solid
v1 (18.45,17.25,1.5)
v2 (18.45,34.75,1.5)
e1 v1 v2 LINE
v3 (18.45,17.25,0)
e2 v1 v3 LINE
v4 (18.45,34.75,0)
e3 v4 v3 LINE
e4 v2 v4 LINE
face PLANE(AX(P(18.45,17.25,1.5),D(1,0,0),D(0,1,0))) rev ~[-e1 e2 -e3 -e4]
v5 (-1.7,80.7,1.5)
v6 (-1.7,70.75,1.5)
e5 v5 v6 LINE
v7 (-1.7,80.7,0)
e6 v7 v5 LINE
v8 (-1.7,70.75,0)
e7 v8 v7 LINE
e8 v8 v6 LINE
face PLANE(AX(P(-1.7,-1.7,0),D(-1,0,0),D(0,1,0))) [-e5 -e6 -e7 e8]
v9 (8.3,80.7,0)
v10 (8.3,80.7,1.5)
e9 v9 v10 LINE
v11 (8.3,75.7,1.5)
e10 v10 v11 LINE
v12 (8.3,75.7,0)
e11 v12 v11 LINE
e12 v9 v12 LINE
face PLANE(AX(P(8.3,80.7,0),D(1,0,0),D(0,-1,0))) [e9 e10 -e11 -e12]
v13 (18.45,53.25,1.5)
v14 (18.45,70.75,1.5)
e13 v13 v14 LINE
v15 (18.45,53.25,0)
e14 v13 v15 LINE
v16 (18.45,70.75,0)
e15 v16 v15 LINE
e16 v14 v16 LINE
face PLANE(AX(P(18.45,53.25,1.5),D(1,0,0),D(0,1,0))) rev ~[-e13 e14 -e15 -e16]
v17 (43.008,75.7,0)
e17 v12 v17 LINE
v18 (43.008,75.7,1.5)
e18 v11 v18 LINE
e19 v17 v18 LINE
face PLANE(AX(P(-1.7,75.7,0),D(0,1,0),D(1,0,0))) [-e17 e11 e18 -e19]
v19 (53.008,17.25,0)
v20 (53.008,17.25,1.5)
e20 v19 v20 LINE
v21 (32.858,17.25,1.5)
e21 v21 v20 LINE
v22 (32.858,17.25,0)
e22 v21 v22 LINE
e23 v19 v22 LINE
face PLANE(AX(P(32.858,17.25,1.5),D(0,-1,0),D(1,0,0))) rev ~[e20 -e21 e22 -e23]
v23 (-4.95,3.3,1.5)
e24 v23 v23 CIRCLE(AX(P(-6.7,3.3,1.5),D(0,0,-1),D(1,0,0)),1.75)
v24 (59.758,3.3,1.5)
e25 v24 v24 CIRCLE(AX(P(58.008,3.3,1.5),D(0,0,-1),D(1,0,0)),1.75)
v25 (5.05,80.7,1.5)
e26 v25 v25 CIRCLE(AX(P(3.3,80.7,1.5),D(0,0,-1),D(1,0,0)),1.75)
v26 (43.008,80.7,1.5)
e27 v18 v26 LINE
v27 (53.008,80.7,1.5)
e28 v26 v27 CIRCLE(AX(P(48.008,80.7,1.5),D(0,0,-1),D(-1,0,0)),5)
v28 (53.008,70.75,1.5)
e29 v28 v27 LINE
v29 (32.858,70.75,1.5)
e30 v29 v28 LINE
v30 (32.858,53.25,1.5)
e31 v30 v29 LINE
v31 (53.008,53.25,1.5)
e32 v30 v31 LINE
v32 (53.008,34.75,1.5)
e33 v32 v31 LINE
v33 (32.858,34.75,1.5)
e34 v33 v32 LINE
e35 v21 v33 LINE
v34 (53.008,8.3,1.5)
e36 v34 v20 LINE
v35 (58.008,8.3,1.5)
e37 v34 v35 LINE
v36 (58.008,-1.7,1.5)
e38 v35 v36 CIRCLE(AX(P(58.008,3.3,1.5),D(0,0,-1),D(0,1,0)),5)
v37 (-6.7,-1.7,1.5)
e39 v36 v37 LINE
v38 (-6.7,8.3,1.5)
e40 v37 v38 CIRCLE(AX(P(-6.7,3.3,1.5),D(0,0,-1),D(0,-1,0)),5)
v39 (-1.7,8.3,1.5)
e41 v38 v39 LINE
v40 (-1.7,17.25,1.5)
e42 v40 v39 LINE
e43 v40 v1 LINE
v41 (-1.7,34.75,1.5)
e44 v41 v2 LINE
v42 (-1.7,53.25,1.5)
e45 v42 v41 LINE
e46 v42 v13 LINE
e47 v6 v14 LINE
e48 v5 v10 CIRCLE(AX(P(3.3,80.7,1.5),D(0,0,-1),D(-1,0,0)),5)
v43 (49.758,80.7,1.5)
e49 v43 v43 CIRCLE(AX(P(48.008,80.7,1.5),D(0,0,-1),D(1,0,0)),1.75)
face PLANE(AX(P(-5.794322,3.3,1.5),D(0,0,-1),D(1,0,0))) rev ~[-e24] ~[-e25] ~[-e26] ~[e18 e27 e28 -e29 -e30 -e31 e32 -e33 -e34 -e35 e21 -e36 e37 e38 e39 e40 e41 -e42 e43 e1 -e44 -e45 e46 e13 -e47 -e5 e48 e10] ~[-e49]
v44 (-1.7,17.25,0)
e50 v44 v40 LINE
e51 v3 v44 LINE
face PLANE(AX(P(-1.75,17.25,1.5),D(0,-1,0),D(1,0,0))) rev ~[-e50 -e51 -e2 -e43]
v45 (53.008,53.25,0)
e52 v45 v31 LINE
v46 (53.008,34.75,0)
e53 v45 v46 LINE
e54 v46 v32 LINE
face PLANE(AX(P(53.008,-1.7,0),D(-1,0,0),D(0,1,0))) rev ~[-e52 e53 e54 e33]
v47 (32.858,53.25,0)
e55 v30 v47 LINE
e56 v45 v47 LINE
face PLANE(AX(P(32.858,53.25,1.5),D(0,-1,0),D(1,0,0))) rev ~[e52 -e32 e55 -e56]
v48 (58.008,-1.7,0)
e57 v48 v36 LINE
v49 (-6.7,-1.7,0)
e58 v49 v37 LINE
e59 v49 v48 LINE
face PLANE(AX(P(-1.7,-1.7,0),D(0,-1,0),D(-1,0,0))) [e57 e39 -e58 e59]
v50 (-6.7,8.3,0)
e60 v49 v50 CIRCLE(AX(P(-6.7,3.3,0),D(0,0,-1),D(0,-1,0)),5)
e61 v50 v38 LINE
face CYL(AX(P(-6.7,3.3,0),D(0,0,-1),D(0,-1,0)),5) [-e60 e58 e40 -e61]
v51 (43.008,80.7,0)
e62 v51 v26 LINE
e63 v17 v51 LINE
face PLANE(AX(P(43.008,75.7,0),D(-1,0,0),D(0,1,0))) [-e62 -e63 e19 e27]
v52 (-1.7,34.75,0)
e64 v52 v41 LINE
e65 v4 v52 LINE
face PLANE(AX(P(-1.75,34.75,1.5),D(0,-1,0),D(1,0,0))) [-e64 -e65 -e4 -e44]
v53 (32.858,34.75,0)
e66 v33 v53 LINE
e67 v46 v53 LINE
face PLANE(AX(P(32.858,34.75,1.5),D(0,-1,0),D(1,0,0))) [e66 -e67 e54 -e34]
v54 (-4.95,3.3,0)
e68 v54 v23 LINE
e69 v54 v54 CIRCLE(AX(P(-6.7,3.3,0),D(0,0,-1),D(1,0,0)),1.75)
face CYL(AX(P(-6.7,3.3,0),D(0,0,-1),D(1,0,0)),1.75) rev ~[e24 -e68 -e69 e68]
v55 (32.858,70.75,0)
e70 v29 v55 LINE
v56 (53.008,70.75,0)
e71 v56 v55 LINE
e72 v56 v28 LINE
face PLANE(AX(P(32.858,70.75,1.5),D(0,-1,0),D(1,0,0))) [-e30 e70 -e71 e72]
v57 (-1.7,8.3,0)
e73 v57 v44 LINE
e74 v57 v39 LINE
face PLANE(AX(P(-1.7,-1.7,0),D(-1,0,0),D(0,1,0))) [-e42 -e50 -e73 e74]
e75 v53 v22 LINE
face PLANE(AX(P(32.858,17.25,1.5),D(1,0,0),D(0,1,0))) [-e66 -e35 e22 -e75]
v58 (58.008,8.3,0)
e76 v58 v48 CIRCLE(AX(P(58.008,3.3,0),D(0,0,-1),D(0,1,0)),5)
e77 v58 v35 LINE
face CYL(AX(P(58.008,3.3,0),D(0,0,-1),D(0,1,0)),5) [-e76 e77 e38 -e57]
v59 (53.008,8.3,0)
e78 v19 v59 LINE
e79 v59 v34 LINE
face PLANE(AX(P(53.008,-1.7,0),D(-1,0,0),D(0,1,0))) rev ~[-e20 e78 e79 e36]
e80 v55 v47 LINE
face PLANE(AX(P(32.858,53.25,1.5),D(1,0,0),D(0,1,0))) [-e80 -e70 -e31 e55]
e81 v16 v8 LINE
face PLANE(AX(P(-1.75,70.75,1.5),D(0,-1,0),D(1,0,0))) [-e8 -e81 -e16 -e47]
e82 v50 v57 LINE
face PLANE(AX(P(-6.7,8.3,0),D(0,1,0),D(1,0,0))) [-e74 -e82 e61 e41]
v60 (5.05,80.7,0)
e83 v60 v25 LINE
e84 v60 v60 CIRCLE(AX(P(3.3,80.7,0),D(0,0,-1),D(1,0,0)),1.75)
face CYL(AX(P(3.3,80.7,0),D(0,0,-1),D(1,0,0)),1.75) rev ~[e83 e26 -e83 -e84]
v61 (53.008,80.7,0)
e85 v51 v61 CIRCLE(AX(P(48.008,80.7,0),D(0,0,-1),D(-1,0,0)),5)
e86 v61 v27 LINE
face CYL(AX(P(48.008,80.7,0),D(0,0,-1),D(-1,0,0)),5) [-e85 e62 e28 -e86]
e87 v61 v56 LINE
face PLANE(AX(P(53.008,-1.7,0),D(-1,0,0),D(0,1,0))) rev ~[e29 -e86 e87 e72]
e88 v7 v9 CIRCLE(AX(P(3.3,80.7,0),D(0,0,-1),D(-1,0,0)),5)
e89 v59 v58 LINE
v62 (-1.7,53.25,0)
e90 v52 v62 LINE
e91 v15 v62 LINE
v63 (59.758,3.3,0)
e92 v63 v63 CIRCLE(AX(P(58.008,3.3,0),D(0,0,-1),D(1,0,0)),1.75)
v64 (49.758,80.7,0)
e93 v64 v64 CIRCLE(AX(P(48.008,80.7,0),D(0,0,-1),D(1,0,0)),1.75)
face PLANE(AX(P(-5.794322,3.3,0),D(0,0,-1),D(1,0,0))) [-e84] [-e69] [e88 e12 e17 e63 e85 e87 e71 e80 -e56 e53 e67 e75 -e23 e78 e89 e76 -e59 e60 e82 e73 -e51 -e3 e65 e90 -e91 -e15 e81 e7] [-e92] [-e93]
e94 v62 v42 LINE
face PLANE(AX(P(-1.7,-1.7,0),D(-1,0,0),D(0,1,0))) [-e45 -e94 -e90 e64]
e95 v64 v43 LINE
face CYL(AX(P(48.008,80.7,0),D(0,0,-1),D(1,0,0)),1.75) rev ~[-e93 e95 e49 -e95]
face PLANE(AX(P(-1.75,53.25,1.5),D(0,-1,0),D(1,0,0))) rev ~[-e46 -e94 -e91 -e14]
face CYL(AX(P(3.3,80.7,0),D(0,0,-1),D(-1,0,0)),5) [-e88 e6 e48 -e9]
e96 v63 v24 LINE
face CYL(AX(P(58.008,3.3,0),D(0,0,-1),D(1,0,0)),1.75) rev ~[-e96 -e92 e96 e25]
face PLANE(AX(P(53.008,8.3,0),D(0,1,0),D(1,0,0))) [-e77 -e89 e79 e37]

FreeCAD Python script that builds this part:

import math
import FreeCAD as App
import Part
import Sketcher


def add_polygon(sketch, points):
    """Adds a closed chain of lines whose ends are joined by coincident constraints."""
    first, n = sketch.GeometryCount, len(points)
    for a, b in zip(points, points[1:] + points[:1]):
        sketch.addGeometry(Part.LineSegment(App.Vector(*a, 0), App.Vector(*b, 0)), False)
    for i in range(n):
        sketch.addConstraint(Sketcher.Constraint("Coincident", first + i, 2, first + (i + 1) % n, 1))

doc = App.newDocument("Part")
body = doc.addObject("PartDesign::Body", "Body")

# Sketch on XY plane
sketch1 = doc.addObject("Sketcher::SketchObject", "Sketch")
body.addObject(sketch1)
sketch1.AttachmentSupport = (doc.XY_Plane, [""])
sketch1.MapMode = "FlatFace"
add_polygon(sketch1, [(-1.7, 75.7), (-1.7, -1.7), (53.008, -1.7), (53.008, 75.7)])  # lines 0-3
sketch1.addConstraint([
    Sketcher.Constraint("Vertical", 0),
    Sketcher.Constraint("Horizontal", 1),
    Sketcher.Constraint("Vertical", 2),
    Sketcher.Constraint("Horizontal", 3),
    Sketcher.Constraint("DistanceY", 0, 2, 0, 1, 77.4),
    Sketcher.Constraint("DistanceX", 0, 2, -1, 1, 1.7),
    Sketcher.Constraint("DistanceY", 0, 2, -1, 1, 1.7),
    Sketcher.Constraint("DistanceX", 1, 1, 1, 2, 54.708),
])
pad1 = doc.addObject("PartDesign::Pad", "Pad")
body.addObject(pad1)
pad1.Profile = sketch1
pad1.Length = 1.5

# Sketch on XY plane
sketch2 = doc.addObject("Sketcher::SketchObject", "Sketch001")
body.addObject(sketch2)
sketch2.AttachmentSupport = (doc.XY_Plane, [""])
sketch2.MapMode = "FlatFace"
sketch2.addGeometry([
    Part.LineSegment(App.Vector(-1.7, -1.7, 0), App.Vector(-6.7, -1.7, 0)),  # 0
    Part.ArcOfCircle(Part.Circle(App.Vector(-6.7, 3.3, 0), App.Vector(0, 0, 1), 5), math.radians(90), math.radians(270)),  # 1
    Part.LineSegment(App.Vector(-6.7, 8.3, 0), App.Vector(-1.7, 8.3, 0)),  # 2
    Part.LineSegment(App.Vector(-1.7, 8.3, 0), App.Vector(-1.7, -1.7, 0)),  # 3
    Part.Circle(App.Vector(-6.7, 3.3, 0), App.Vector(0, 0, 1), 1.75),  # 4
    Part.LineSegment(App.Vector(-1.7, 75.7, 0), App.Vector(-1.7, 80.7, 0)),  # 5
    Part.ArcOfCircle(Part.Circle(App.Vector(3.3, 80.7, 0), App.Vector(0, 0, 1), 5), math.radians(0), math.radians(180)),  # 6
    Part.LineSegment(App.Vector(8.3, 80.7, 0), App.Vector(8.3, 75.7, 0)),  # 7
    Part.LineSegment(App.Vector(8.3, 75.7, 0), App.Vector(-1.7, 75.7, 0)),  # 8
    Part.Circle(App.Vector(3.3, 80.7, 0), App.Vector(0, 0, 1), 1.75),  # 9
    Part.LineSegment(App.Vector(53.008, 8.3, 0), App.Vector(58.008, 8.3, 0)),  # 10
    Part.ArcOfCircle(Part.Circle(App.Vector(58.008, 3.3, 0), App.Vector(0, 0, 1), 5), math.radians(-90), math.radians(90)),  # 11
    Part.LineSegment(App.Vector(58.008, -1.7, 0), App.Vector(53.008, -1.7, 0)),  # 12
    Part.LineSegment(App.Vector(53.008, -1.7, 0), App.Vector(53.008, 8.3, 0)),  # 13
    Part.Circle(App.Vector(58.008, 3.3, 0), App.Vector(0, 0, 1), 1.75),  # 14
    Part.LineSegment(App.Vector(43.008, 75.7, 0), App.Vector(43.008, 80.7, 0)),  # 15
    Part.ArcOfCircle(Part.Circle(App.Vector(48.008, 80.7, 0), App.Vector(0, 0, 1), 5), math.radians(0), math.radians(180)),  # 16
    Part.LineSegment(App.Vector(53.008, 80.7, 0), App.Vector(53.008, 75.7, 0)),  # 17
    Part.LineSegment(App.Vector(53.008, 75.7, 0), App.Vector(43.008, 75.7, 0)),  # 18
    Part.Circle(App.Vector(48.008, 80.7, 0), App.Vector(0, 0, 1), 1.75),  # 19
], False)
sketch2.addConstraint([
    Sketcher.Constraint("Tangent", 0, 2, 1, 2),
    Sketcher.Constraint("Tangent", 1, 1, 2, 1),
    Sketcher.Constraint("Coincident", 2, 2, 3, 1),
    Sketcher.Constraint("Coincident", 3, 2, 0, 1),
    Sketcher.Constraint("Tangent", 5, 2, 6, 2),
    Sketcher.Constraint("Tangent", 6, 1, 7, 1),
    Sketcher.Constraint("Coincident", 7, 2, 8, 1),
    Sketcher.Constraint("Coincident", 8, 2, 5, 1),
    Sketcher.Constraint("Tangent", 10, 2, 11, 2),
    Sketcher.Constraint("Tangent", 11, 1, 12, 1),
    Sketcher.Constraint("Coincident", 12, 2, 13, 1),
    Sketcher.Constraint("Coincident", 13, 2, 10, 1),
    Sketcher.Constraint("Tangent", 15, 2, 16, 2),
    Sketcher.Constraint("Tangent", 16, 1, 17, 1),
    Sketcher.Constraint("Coincident", 17, 2, 18, 1),
    Sketcher.Constraint("Coincident", 18, 2, 15, 1),
    Sketcher.Constraint("Horizontal", 0),
    Sketcher.Constraint("Horizontal", 2),
    Sketcher.Constraint("Vertical", 3),
    Sketcher.Constraint("Vertical", 5),
    Sketcher.Constraint("Vertical", 7),
    Sketcher.Constraint("Horizontal", 8),
    Sketcher.Constraint("Horizontal", 10),
    Sketcher.Constraint("Horizontal", 12),
    Sketcher.Constraint("Vertical", 13),
    Sketcher.Constraint("Vertical", 15),
    Sketcher.Constraint("Vertical", 17),
    Sketcher.Constraint("Horizontal", 18),
    Sketcher.Constraint("Coincident", 4, 3, 1, 3),
    Sketcher.Constraint("Coincident", 9, 3, 6, 3),
    Sketcher.Constraint("Coincident", 14, 3, 11, 3),
    Sketcher.Constraint("Coincident", 19, 3, 16, 3),
    Sketcher.Constraint("Equal", 1, 6),
    Sketcher.Constraint("Equal", 4, 9),
    Sketcher.Constraint("Equal", 6, 11),
    Sketcher.Constraint("Equal", 9, 14),
    Sketcher.Constraint("Equal", 11, 16),
    Sketcher.Constraint("Equal", 14, 19),
    Sketcher.Constraint("Horizontal", 4, 3, 11, 3),
    Sketcher.Constraint("Horizontal", 9, 3, 16, 3),
    Sketcher.Constraint("Horizontal", 8, 2, 17, 2),
    Sketcher.Constraint("Vertical", 3, 2, 5, 2),
    Sketcher.Constraint("Vertical", 13, 2, 16, 1),
    Sketcher.Constraint("Equal", 2, 10),
    Sketcher.Constraint("Equal", 12, 5),
    Sketcher.Constraint("Radius", 1, 5.0),
    Sketcher.Constraint("Diameter", 4, 3.5),
    Sketcher.Constraint("DistanceX", 0, 2, 0, 1, 5.0),
    Sketcher.Constraint("DistanceX", 1, 3, -1, 1, 6.7),
    Sketcher.Constraint("DistanceY", -1, 1, 1, 3, 3.3),
    Sketcher.Constraint("DistanceY", -1, 1, 6, 3, 80.7),
    Sketcher.Constraint("DistanceX", -1, 1, 11, 3, 58.008),
])
pad2 = doc.addObject("PartDesign::Pad", "Pad001")
body.addObject(pad2)
pad2.Profile = sketch2
pad2.Length = 1.5

# Sketch on XY plane
sketch3 = doc.addObject("Sketcher::SketchObject", "Sketch002")
body.addObject(sketch3)
sketch3.AttachmentSupport = (doc.XY_Plane, [""])
sketch3.MapMode = "FlatFace"
sketch3.AttachmentOffset = App.Placement(App.Vector(0, 0, 1.5), App.Rotation())
add_polygon(sketch3, [(-1.75, 34.75), (-1.75, 17.25), (18.45, 17.25), (18.45, 34.75)])  # lines 0-3
add_polygon(sketch3, [(32.858, 34.75), (32.858, 17.25), (53.058, 17.25), (53.058, 34.75)])  # lines 4-7
add_polygon(sketch3, [(-1.75, 70.75), (-1.75, 53.25), (18.45, 53.25), (18.45, 70.75)])  # lines 8-11
add_polygon(sketch3, [(32.858, 70.75), (32.858, 53.25), (53.058, 53.25), (53.058, 70.75)])  # lines 12-15
sketch3.addConstraint([
    Sketcher.Constraint("Vertical", 0),
    Sketcher.Constraint("Horizontal", 1),
    Sketcher.Constraint("Vertical", 2),
    Sketcher.Constraint("Horizontal", 3),
    Sketcher.Constraint("Vertical", 4),
    Sketcher.Constraint("Horizontal", 5),
    Sketcher.Constraint("Vertical", 6),
    Sketcher.Constraint("Horizontal", 7),
    Sketcher.Constraint("Vertical", 8),
    Sketcher.Constraint("Horizontal", 9),
    Sketcher.Constraint("Vertical", 10),
    Sketcher.Constraint("Horizontal", 11),
    Sketcher.Constraint("Vertical", 12),
    Sketcher.Constraint("Horizontal", 13),
    Sketcher.Constraint("Vertical", 14),
    Sketcher.Constraint("Horizontal", 15),
    Sketcher.Constraint("Horizontal", 1, 2, 4, 2),
    Sketcher.Constraint("Horizontal", 3, 2, 6, 2),
    Sketcher.Constraint("Horizontal", 9, 2, 12, 2),
    Sketcher.Constraint("Horizontal", 11, 2, 14, 2),
    Sketcher.Constraint("Vertical", 3, 2, 8, 2),
    Sketcher.Constraint("Vertical", 2, 2, 9, 2),
    Sketcher.Constraint("Vertical", 7, 2, 12, 2),
    Sketcher.Constraint("Vertical", 6, 2, 13, 2),
    Sketcher.Constraint("Equal", 3, 5),
    Sketcher.Constraint("Equal", 6, 8),
    Sketcher.Constraint("DistanceX", 1, 1, 1, 2, 20.2),
    Sketcher.Constraint("DistanceY", 0, 2, 0, 1, 17.5),
    Sketcher.Constraint("DistanceY", 0, 2, 8, 2, 36.0),
    Sketcher.Constraint("DistanceX", 0, 2, -1, 1, 1.75),
    Sketcher.Constraint("DistanceY", -1, 1, 0, 2, 17.25),
    Sketcher.Constraint("DistanceX", -1, 1, 4, 2, 32.858),
])
pocket1 = doc.addObject("PartDesign::Pocket", "Pocket")
body.addObject(pocket1)
pocket1.Profile = sketch3
pocket1.Type = "ThroughAll"

doc.recompute()
